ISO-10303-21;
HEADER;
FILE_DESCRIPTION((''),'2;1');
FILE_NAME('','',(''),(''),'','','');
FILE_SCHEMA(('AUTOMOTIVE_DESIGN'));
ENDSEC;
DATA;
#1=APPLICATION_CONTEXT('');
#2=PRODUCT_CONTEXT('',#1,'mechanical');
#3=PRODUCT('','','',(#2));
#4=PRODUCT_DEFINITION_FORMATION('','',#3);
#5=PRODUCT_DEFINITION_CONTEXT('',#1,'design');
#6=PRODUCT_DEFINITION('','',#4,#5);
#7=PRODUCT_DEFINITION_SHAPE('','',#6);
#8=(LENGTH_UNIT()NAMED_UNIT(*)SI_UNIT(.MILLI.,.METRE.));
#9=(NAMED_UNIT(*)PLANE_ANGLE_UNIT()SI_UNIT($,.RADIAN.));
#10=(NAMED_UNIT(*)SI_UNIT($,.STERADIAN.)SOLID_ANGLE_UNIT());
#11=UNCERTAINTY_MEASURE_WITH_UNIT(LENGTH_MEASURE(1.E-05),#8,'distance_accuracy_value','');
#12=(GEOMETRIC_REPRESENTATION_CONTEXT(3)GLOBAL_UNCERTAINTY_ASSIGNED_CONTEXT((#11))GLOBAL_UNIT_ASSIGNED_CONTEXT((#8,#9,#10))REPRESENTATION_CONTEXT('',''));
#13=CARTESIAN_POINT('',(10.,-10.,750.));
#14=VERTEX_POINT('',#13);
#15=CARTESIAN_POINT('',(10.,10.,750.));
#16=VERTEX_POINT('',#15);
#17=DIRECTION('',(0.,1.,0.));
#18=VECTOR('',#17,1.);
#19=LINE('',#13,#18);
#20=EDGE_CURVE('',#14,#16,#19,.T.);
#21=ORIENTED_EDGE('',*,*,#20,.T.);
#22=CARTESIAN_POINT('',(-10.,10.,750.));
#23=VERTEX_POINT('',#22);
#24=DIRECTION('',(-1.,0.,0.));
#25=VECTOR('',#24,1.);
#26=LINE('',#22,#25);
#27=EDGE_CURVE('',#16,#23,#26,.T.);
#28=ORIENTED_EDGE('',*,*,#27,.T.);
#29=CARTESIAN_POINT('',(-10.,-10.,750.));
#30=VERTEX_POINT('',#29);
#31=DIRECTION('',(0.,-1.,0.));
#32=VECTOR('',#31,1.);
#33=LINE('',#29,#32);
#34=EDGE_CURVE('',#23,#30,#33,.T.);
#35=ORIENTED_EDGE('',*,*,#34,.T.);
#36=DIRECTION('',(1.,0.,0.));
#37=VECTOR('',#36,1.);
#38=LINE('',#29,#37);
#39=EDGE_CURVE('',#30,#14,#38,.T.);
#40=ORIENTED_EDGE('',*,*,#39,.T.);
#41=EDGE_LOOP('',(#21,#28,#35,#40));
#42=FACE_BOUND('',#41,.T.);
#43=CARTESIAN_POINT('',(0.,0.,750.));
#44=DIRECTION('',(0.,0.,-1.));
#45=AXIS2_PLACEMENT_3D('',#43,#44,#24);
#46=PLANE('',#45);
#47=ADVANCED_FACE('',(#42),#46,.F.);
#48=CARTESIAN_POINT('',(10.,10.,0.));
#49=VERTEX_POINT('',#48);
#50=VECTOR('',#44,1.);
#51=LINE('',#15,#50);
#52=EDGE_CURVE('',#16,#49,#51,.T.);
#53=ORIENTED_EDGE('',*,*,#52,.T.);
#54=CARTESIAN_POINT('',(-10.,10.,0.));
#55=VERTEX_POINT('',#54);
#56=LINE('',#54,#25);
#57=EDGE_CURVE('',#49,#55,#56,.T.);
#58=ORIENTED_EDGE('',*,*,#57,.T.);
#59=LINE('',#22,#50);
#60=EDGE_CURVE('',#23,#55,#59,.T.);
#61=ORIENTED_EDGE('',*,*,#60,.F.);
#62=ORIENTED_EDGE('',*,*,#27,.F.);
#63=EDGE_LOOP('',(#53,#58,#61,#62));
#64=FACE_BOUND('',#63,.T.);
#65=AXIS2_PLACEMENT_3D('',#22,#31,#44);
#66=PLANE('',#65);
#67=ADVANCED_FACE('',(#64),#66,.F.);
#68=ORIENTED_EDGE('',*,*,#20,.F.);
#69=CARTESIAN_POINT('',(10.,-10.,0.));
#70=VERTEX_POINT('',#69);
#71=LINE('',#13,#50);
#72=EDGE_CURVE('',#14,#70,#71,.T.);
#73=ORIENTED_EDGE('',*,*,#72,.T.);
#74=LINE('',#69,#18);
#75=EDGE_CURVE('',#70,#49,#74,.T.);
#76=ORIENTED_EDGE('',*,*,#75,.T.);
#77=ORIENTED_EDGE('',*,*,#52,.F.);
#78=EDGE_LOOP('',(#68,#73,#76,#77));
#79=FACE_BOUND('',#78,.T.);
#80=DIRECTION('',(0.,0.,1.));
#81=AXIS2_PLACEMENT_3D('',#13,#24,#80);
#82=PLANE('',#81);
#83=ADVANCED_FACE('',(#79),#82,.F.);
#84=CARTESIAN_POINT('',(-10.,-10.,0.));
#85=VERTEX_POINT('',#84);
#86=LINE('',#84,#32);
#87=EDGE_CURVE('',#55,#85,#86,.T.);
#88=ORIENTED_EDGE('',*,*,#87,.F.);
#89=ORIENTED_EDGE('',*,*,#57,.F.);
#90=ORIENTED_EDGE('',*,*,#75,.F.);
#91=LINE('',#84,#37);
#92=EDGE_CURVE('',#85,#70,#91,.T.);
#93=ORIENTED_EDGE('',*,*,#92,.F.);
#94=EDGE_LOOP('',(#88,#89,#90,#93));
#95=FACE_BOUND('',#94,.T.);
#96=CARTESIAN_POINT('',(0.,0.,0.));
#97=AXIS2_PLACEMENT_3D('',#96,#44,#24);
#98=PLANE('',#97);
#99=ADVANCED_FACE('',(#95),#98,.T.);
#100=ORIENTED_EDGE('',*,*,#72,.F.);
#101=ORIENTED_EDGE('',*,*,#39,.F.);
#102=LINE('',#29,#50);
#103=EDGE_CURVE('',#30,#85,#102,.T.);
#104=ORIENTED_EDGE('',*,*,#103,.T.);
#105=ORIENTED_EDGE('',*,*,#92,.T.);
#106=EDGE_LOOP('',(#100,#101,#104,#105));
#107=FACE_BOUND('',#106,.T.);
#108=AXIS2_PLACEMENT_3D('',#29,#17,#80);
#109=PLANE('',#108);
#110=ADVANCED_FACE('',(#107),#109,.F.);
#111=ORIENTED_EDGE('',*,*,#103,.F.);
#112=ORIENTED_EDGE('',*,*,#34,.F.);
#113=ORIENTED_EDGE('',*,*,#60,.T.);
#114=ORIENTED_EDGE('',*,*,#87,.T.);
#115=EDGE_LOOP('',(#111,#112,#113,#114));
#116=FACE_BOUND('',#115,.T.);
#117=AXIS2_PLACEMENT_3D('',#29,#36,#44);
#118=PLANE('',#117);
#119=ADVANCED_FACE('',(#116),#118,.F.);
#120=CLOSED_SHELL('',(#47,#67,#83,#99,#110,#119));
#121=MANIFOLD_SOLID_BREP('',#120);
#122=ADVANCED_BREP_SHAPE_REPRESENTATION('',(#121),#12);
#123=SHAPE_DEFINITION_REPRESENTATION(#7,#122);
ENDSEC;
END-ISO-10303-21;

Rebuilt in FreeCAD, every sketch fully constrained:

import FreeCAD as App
import Part
import Sketcher


def add_polygon(sketch, points):
    """Adds a closed chain of lines whose ends are joined by coincident constraints."""
    first, n = sketch.GeometryCount, len(points)
    for a, b in zip(points, points[1:] + points[:1]):
        sketch.addGeometry(Part.LineSegment(App.Vector(*a, 0), App.Vector(*b, 0)), False)
    for i in range(n):
        sketch.addConstraint(Sketcher.Constraint("Coincident", first + i, 2, first + (i + 1) % n, 1))

doc = App.newDocument("Part")
body = doc.addObject("PartDesign::Body", "Body")

sketch1 = body.newObject("Sketcher::SketchObject", "Sketch")
sketch1.AttachmentSupport = (doc.getObject("XY_Plane"), [""])
sketch1.MapMode = "FlatFace"
add_polygon(sketch1, [(-10, 10), (-10, -10), (10, -10), (10, 10)])
sketch1.addConstraint([
    Sketcher.Constraint("Vertical", 0),
    Sketcher.Constraint("Horizontal", 1),
    Sketcher.Constraint("Vertical", 2),
    Sketcher.Constraint("Horizontal", 3),
    Sketcher.Constraint("Symmetric", 0, 2, 2, 2, -1, 1),
    Sketcher.Constraint("Equal", 3, 0),
    Sketcher.Constraint("DistanceX", 1, 1, 1, 2, 20.0),
])
pad1 = body.newObject("PartDesign::Pad", "Pad")
pad1.Profile = sketch1
pad1.Length = 750

doc.recompute()
